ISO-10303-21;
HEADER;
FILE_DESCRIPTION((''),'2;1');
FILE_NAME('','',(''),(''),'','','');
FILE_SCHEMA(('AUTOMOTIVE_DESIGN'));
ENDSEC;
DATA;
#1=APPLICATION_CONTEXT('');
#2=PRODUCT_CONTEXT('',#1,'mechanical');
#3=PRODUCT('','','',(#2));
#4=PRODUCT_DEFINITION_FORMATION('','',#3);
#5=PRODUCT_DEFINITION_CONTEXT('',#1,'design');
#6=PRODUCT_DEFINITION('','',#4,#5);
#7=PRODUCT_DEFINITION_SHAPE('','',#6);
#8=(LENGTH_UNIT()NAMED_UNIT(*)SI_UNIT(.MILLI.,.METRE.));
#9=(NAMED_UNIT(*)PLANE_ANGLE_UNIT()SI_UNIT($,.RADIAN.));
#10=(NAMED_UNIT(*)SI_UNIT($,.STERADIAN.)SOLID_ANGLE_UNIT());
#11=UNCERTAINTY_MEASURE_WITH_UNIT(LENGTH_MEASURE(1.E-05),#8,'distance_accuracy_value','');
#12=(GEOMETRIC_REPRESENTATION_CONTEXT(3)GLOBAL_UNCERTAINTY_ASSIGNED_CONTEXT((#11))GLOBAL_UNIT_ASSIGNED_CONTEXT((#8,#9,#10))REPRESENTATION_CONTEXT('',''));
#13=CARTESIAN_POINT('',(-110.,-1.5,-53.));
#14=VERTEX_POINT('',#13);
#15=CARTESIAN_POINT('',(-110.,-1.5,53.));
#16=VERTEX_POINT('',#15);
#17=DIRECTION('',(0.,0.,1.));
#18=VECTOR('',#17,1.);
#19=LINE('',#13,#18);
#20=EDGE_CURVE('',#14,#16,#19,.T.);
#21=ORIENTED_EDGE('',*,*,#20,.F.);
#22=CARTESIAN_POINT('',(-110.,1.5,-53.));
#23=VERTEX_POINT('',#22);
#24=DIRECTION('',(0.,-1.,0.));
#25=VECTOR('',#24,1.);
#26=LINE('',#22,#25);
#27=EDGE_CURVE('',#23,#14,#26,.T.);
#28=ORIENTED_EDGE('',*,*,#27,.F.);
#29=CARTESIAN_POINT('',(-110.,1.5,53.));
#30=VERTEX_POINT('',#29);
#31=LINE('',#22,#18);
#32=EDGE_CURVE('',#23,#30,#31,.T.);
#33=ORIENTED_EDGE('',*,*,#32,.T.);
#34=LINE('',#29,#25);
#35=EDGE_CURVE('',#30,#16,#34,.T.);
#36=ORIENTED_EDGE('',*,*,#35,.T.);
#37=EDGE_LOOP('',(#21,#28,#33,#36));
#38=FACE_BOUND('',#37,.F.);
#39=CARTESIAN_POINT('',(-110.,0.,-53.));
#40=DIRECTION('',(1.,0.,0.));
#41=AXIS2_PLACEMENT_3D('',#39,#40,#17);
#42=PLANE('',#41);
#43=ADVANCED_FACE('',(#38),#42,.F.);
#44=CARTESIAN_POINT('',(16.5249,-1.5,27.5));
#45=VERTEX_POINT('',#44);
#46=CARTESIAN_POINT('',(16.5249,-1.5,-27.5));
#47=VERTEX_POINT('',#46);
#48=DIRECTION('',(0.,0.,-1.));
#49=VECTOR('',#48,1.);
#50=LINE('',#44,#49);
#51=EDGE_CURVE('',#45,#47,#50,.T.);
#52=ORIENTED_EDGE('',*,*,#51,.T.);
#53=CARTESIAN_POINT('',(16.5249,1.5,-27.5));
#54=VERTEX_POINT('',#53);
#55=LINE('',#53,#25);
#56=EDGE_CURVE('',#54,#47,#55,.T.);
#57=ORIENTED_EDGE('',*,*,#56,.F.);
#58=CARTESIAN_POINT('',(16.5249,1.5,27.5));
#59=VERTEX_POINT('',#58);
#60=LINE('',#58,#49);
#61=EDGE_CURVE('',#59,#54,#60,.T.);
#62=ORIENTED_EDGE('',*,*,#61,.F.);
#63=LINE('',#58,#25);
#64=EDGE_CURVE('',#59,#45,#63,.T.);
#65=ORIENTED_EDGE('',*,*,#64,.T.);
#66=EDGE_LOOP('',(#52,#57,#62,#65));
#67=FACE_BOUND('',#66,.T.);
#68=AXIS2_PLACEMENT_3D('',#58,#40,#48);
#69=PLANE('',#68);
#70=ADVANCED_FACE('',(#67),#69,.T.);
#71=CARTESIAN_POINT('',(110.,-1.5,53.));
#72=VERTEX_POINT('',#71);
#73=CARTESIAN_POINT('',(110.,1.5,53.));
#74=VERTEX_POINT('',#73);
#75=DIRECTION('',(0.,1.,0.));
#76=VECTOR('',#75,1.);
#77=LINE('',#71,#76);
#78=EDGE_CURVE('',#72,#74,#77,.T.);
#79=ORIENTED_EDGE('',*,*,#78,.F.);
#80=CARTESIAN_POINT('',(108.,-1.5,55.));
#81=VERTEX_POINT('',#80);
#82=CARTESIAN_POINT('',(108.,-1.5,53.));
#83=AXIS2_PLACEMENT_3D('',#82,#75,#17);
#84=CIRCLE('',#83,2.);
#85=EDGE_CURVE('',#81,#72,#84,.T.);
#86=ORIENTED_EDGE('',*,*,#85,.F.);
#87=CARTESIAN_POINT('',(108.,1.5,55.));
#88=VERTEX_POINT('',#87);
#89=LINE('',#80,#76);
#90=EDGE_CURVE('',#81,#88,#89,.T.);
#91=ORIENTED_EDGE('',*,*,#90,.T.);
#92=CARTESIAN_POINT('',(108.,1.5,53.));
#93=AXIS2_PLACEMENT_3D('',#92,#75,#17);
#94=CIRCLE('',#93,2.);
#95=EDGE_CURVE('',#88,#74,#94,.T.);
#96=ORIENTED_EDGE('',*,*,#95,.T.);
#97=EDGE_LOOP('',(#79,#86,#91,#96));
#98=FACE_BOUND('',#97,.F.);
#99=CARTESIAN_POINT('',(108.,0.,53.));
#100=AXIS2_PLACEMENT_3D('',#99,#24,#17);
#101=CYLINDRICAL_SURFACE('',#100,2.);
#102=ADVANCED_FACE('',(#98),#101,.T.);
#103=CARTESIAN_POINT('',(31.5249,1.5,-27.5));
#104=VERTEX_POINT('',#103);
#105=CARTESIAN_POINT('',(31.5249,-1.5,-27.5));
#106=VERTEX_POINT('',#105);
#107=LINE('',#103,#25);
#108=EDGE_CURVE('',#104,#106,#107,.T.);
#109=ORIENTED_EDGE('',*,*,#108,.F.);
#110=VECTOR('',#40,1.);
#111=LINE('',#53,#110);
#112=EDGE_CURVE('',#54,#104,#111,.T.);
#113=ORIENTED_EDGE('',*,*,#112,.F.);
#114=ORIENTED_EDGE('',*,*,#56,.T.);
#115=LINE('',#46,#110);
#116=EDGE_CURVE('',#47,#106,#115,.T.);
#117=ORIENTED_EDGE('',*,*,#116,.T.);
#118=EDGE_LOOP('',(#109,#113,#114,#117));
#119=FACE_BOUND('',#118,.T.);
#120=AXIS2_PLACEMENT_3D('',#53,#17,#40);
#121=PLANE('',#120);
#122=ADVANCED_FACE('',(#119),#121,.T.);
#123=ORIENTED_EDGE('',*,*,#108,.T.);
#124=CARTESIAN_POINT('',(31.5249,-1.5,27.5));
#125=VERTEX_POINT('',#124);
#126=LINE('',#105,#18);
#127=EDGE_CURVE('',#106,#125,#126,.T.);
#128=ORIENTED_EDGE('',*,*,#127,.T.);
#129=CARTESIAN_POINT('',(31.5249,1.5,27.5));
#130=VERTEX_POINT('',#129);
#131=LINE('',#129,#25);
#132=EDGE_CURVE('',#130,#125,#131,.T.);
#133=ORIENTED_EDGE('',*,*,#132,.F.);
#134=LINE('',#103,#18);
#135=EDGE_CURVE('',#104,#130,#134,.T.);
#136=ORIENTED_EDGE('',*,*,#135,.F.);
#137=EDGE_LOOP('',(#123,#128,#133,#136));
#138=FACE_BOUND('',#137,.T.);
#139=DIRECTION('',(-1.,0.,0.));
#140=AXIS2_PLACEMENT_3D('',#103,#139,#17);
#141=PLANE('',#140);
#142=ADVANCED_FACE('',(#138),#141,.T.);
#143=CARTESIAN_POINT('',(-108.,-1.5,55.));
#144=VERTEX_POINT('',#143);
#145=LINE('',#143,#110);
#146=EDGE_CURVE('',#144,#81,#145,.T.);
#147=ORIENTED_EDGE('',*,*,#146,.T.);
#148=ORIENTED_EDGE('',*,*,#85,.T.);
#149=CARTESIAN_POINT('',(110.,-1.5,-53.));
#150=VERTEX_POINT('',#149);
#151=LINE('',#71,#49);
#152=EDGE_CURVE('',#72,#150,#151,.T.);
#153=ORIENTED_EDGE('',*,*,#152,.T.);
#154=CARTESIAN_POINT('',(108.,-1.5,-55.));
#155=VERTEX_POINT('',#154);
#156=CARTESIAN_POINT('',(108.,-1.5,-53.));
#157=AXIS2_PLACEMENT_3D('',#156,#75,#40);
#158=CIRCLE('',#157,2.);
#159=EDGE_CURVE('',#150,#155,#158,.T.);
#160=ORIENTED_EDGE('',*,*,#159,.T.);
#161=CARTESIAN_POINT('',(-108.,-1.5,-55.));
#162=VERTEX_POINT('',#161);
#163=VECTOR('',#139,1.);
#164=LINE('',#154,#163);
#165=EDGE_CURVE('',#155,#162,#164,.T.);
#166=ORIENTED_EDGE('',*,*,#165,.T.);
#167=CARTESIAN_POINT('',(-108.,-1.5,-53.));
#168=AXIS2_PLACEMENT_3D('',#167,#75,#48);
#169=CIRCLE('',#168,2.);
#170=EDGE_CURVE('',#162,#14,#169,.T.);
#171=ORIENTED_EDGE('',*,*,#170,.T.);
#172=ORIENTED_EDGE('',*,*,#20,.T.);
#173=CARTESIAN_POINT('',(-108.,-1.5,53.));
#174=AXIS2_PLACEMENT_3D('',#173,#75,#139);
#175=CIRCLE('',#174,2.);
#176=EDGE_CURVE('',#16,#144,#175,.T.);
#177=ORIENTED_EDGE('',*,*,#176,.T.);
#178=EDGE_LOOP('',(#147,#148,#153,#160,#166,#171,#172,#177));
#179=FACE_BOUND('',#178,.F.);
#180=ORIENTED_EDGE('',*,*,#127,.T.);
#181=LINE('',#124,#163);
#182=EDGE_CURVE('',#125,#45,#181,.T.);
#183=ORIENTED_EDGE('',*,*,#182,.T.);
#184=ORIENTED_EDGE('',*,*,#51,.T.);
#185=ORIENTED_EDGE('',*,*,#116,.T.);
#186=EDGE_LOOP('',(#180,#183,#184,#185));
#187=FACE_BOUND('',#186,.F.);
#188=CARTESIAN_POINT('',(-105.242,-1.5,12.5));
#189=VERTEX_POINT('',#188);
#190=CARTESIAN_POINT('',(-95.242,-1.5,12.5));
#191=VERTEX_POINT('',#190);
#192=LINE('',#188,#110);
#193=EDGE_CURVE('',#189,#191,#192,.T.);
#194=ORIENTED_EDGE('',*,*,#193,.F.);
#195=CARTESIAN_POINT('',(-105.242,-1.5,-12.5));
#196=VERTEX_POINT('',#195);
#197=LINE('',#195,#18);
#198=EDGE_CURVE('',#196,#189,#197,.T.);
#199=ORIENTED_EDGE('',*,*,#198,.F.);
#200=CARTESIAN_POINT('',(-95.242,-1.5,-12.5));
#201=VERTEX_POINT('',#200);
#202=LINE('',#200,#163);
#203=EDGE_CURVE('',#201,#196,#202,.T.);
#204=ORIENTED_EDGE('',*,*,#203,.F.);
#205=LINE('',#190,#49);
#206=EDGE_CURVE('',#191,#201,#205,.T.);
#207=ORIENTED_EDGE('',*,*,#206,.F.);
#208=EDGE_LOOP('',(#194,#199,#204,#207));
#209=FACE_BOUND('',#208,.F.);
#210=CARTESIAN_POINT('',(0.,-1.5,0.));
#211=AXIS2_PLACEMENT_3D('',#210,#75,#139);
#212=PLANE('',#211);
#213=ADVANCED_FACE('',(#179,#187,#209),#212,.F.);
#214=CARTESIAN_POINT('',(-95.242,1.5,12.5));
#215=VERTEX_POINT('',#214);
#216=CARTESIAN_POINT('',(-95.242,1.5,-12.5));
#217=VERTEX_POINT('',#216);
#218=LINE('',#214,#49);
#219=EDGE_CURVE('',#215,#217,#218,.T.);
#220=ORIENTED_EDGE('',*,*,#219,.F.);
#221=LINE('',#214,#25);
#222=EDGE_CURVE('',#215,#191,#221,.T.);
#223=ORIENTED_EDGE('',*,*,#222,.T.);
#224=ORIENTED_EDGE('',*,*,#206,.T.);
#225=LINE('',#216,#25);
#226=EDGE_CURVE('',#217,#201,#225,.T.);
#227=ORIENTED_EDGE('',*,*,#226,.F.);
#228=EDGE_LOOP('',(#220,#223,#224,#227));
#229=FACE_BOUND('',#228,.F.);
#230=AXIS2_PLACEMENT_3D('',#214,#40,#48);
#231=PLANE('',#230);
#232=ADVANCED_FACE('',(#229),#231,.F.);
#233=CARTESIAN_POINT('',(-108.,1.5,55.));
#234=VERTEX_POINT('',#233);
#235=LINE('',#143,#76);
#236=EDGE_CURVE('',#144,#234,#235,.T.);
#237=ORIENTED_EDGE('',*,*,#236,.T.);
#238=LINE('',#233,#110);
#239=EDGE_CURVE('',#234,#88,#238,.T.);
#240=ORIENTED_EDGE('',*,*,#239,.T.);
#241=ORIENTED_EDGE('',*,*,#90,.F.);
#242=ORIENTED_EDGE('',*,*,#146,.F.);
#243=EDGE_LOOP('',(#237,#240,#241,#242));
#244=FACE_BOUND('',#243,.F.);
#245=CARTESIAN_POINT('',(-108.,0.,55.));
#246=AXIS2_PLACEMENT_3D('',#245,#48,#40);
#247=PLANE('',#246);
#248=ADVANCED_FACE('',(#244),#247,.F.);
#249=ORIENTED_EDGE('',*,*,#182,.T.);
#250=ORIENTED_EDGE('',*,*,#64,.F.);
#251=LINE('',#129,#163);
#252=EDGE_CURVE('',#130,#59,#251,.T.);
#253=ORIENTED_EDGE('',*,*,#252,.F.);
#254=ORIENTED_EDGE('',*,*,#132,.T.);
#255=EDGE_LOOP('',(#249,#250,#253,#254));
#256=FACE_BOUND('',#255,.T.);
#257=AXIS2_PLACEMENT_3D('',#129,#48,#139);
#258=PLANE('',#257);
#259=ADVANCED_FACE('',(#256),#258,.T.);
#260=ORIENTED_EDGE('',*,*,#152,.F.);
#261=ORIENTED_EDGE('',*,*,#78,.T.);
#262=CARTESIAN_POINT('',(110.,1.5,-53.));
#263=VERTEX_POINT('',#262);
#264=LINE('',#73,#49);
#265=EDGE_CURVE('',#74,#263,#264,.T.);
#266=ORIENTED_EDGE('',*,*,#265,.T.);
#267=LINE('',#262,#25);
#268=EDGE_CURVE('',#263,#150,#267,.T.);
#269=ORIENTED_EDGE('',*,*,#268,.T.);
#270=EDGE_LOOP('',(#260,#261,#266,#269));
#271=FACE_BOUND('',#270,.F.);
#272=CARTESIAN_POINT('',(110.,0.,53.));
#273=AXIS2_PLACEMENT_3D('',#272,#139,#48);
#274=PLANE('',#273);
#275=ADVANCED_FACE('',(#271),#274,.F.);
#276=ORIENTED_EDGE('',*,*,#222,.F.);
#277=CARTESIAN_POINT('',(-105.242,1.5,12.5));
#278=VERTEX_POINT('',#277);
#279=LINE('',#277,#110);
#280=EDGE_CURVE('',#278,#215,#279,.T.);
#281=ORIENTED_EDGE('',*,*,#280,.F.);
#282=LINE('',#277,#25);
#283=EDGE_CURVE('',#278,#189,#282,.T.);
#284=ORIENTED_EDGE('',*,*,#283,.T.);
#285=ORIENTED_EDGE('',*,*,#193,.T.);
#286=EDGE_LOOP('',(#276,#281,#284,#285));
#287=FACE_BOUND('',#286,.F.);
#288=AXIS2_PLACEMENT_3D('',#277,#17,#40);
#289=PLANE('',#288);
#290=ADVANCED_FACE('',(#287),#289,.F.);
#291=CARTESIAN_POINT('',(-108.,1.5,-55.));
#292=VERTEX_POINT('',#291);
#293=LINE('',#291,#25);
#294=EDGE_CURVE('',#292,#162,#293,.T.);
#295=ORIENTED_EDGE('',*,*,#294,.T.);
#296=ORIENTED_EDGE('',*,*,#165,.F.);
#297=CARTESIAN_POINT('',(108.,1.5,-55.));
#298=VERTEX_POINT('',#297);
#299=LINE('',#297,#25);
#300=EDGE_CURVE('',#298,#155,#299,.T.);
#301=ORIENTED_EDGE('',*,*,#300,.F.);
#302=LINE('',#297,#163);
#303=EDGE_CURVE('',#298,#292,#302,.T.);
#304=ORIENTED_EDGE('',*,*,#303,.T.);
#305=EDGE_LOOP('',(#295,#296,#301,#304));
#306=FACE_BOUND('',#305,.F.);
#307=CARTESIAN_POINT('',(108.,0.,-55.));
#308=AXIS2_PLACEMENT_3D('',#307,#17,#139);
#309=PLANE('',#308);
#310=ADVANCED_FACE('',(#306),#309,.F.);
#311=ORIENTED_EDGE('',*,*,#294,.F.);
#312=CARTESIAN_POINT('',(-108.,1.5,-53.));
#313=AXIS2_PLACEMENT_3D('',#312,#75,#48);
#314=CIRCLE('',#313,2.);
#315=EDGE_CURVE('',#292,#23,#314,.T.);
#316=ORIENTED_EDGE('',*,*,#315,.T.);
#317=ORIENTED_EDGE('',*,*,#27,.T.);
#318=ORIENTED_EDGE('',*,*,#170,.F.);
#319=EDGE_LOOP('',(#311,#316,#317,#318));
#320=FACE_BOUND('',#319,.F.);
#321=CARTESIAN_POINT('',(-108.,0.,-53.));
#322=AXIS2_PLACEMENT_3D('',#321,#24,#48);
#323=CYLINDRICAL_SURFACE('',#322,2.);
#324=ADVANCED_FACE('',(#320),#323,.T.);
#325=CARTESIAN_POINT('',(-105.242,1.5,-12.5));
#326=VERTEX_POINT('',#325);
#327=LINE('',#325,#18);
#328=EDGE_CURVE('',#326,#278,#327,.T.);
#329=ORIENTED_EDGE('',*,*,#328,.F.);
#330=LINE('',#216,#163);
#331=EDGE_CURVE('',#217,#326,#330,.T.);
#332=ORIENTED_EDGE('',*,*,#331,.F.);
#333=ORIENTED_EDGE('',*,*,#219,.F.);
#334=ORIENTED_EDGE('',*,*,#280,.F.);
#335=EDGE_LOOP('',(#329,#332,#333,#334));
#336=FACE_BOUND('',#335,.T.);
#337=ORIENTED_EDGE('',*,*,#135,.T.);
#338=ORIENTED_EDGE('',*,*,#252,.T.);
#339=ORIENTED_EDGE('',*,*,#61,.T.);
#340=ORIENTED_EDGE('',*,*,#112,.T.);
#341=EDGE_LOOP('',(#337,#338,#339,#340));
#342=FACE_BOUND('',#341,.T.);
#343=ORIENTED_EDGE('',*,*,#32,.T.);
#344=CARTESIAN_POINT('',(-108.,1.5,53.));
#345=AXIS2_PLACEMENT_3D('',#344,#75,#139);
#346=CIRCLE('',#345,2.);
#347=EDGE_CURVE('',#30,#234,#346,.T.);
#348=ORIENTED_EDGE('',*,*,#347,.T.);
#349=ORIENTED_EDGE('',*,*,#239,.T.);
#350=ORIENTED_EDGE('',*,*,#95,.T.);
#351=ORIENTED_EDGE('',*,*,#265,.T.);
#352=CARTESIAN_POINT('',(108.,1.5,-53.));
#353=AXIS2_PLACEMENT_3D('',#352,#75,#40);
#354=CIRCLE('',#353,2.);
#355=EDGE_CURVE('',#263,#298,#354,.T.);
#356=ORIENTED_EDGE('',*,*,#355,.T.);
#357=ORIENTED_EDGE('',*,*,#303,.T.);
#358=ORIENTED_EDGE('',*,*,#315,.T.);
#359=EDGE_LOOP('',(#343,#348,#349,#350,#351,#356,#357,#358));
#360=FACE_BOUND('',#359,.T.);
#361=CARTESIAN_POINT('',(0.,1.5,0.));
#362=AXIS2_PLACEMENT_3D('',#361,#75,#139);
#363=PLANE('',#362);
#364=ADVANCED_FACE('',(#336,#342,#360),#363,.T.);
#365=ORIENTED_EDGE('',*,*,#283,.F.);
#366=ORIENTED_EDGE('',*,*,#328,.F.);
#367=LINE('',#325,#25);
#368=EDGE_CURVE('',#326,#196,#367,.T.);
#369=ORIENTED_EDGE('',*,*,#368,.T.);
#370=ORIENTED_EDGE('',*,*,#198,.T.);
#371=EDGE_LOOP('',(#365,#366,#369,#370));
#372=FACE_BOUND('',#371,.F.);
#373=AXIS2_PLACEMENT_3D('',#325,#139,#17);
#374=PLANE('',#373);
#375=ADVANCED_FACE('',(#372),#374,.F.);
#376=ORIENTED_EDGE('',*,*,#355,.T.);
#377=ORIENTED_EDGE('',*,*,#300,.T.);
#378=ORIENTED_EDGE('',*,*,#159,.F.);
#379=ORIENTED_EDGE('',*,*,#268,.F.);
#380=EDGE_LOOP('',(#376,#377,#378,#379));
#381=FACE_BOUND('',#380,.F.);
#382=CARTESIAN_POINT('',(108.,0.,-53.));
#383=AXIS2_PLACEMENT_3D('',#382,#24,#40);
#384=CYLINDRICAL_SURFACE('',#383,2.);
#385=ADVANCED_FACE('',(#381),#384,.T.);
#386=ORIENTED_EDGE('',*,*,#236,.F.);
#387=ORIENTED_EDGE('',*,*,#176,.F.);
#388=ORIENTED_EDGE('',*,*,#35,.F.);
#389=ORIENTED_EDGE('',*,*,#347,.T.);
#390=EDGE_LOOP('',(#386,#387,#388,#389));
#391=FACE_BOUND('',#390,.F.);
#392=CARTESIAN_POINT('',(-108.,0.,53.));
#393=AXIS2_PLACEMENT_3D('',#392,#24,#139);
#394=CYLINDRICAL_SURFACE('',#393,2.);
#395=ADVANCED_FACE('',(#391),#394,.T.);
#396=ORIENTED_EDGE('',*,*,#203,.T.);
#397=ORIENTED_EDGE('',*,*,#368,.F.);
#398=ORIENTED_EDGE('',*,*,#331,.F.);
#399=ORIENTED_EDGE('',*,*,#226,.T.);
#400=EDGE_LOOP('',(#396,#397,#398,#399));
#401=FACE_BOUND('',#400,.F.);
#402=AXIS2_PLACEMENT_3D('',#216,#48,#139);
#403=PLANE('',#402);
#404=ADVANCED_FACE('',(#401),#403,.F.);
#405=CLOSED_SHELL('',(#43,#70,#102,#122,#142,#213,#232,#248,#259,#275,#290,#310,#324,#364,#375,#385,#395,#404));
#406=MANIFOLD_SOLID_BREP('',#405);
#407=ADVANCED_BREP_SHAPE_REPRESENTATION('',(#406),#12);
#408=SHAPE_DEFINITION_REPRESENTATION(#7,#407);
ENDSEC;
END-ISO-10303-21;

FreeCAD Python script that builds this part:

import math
import FreeCAD as App
import Part
import Sketcher

V = App.Vector
Q = App.Units.Quantity

doc = App.newDocument("Part")
body = doc.addObject("PartDesign::Body", "Body")

sketch1 = body.newObject("Sketcher::SketchObject", "Sketch")
sketch1.AttachmentSupport = (doc.getObject("XZ_Plane"), [""])
sketch1.MapMode = "FlatFace"
sketch1.addGeometry(Part.ArcOfCircle(Part.Circle(V(-108, 53, 0), V(0, 0, 1), 2), math.radians(90), math.radians(180)), False)
sketch1.addGeometry(Part.LineSegment(V(-108, 55, 0), V(108, 55, 0)), False)
sketch1.addGeometry(Part.ArcOfCircle(Part.Circle(V(108, 53, 0), V(0, 0, 1), 2), math.radians(0), math.radians(90)), False)
sketch1.addGeometry(Part.LineSegment(V(110, 53, 0), V(110, -53, 0)), False)
sketch1.addGeometry(Part.ArcOfCircle(Part.Circle(V(108, -53, 0), V(0, 0, 1), 2), math.radians(-90), math.radians(0)), False)
sketch1.addGeometry(Part.LineSegment(V(108, -55, 0), V(-108, -55, 0)), False)
sketch1.addGeometry(Part.ArcOfCircle(Part.Circle(V(-108, -53, 0), V(0, 0, 1), 2), math.radians(180), math.radians(270)), False)
sketch1.addGeometry(Part.LineSegment(V(-110, -53, 0), V(-110, 53, 0)), False)
sketch1.addConstraint(Sketcher.Constraint("Tangent", 0, 1, 1, 1))
sketch1.addConstraint(Sketcher.Constraint("Tangent", 1, 2, 2, 2))
sketch1.addConstraint(Sketcher.Constraint("Tangent", 2, 1, 3, 1))
sketch1.addConstraint(Sketcher.Constraint("Tangent", 3, 2, 4, 2))
sketch1.addConstraint(Sketcher.Constraint("Tangent", 4, 1, 5, 1))
sketch1.addConstraint(Sketcher.Constraint("Tangent", 5, 2, 6, 2))
sketch1.addConstraint(Sketcher.Constraint("Tangent", 6, 1, 7, 1))
sketch1.addConstraint(Sketcher.Constraint("Tangent", 7, 2, 0, 2))
sketch1.addConstraint(Sketcher.Constraint("Horizontal", 1))
sketch1.addConstraint(Sketcher.Constraint("Vertical", 3))
sketch1.addConstraint(Sketcher.Constraint("Horizontal", 5))
sketch1.addConstraint(Sketcher.Constraint("Vertical", 7))
sketch1.addConstraint(Sketcher.Constraint("Equal", 0, 2))
sketch1.addConstraint(Sketcher.Constraint("Equal", 2, 4))
sketch1.addConstraint(Sketcher.Constraint("Equal", 4, 6))
sketch1.addConstraint(Sketcher.Constraint("Symmetric", 0, 3, 4, 3, -1, 1))
sketch1.addConstraint(Sketcher.Constraint("Radius", 0, Q("2 mm")))
sketch1.addConstraint(Sketcher.Constraint("DistanceX", 1, 1, 1, 2, Q("216 mm")))
sketch1.addConstraint(Sketcher.Constraint("DistanceY", 3, 2, 3, 1, Q("106 mm")))
pad1 = body.newObject("PartDesign::Pad", "Pad")
pad1.Profile = sketch1
pad1.Length = 3
pad1.Midplane = True

sketch2 = body.newObject("Sketcher::SketchObject", "Sketch001")
sketch2.AttachmentSupport = (doc.getObject("XZ_Plane"), [""])
sketch2.MapMode = "FlatFace"
sketch2.AttachmentOffset = App.Placement(V(0, 0, -1.5), App.Rotation())
sketch2.addGeometry(Part.LineSegment(V(-95, 12, 0), V(-95, -12, 0)), False)
sketch2.addGeometry(Part.LineSegment(V(-95, -12, 0), V(-105, -12, 0)), False)
sketch2.addGeometry(Part.LineSegment(V(-105, -12, 0), V(-105, 12, 0)), False)
sketch2.addGeometry(Part.LineSegment(V(-105, 12, 0), V(-95, 12, 0)), False)
sketch2.addGeometry(Part.LineSegment(V(32, -28, 0), V(17, -28, 0)), False)
sketch2.addGeometry(Part.LineSegment(V(17, -28, 0), V(17, 28, 0)), False)
sketch2.addGeometry(Part.LineSegment(V(17, 28, 0), V(32, 28, 0)), False)
sketch2.addGeometry(Part.LineSegment(V(32, 28, 0), V(32, -28, 0)), False)
sketch2.addConstraint(Sketcher.Constraint("Coincident", 0, 2, 1, 1))
sketch2.addConstraint(Sketcher.Constraint("Coincident", 1, 2, 2, 1))
sketch2.addConstraint(Sketcher.Constraint("Coincident", 2, 2, 3, 1))
sketch2.addConstraint(Sketcher.Constraint("Coincident", 3, 2, 0, 1))
sketch2.addConstraint(Sketcher.Constraint("Coincident", 4, 2, 5, 1))
sketch2.addConstraint(Sketcher.Constraint("Coincident", 5, 2, 6, 1))
sketch2.addConstraint(Sketcher.Constraint("Coincident", 6, 2, 7, 1))
sketch2.addConstraint(Sketcher.Constraint("Coincident", 7, 2, 4, 1))
sketch2.addConstraint(Sketcher.Constraint("Vertical", 0))
sketch2.addConstraint(Sketcher.Constraint("Horizontal", 1))
sketch2.addConstraint(Sketcher.Constraint("Vertical", 2))
sketch2.addConstraint(Sketcher.Constraint("Horizontal", 3))
sketch2.addConstraint(Sketcher.Constraint("Horizontal", 4))
sketch2.addConstraint(Sketcher.Constraint("Vertical", 5))
sketch2.addConstraint(Sketcher.Constraint("Horizontal", 6))
sketch2.addConstraint(Sketcher.Constraint("Vertical", 7))
sketch2.addConstraint(Sketcher.Constraint("DistanceX", 1, 2, 1, 1, Q("10 mm")))
sketch2.addConstraint(Sketcher.Constraint("DistanceX", 4, 2, 4, 1, Q("15 mm")))
sketch2.addConstraint(Sketcher.Constraint("DistanceY", 0, 2, 0, 1, Q("25 mm")))
sketch2.addConstraint(Sketcher.Constraint("DistanceY", 5, 1, 5, 2, Q("55 mm")))
sketch2.addConstraint(Sketcher.Constraint("DistanceY", 4, 2, 0, 2, Q("15 mm")))
sketch2.addConstraint(Sketcher.Constraint("DistanceY", 0, 2, -1, 1, Q("12.5 mm")))
sketch2.addConstraint(Sketcher.Constraint("DistanceX", 0, 2, -1, 1, Q("95.242 mm")))
sketch2.addConstraint(Sketcher.Constraint("DistanceX", -1, 1, 4, 2, Q("16.525 mm")))
pocket1 = body.newObject("PartDesign::Pocket", "Pocket")
pocket1.Profile = sketch2
pocket1.Length = 3
pocket1.Reversed = True

doc.recompute()
